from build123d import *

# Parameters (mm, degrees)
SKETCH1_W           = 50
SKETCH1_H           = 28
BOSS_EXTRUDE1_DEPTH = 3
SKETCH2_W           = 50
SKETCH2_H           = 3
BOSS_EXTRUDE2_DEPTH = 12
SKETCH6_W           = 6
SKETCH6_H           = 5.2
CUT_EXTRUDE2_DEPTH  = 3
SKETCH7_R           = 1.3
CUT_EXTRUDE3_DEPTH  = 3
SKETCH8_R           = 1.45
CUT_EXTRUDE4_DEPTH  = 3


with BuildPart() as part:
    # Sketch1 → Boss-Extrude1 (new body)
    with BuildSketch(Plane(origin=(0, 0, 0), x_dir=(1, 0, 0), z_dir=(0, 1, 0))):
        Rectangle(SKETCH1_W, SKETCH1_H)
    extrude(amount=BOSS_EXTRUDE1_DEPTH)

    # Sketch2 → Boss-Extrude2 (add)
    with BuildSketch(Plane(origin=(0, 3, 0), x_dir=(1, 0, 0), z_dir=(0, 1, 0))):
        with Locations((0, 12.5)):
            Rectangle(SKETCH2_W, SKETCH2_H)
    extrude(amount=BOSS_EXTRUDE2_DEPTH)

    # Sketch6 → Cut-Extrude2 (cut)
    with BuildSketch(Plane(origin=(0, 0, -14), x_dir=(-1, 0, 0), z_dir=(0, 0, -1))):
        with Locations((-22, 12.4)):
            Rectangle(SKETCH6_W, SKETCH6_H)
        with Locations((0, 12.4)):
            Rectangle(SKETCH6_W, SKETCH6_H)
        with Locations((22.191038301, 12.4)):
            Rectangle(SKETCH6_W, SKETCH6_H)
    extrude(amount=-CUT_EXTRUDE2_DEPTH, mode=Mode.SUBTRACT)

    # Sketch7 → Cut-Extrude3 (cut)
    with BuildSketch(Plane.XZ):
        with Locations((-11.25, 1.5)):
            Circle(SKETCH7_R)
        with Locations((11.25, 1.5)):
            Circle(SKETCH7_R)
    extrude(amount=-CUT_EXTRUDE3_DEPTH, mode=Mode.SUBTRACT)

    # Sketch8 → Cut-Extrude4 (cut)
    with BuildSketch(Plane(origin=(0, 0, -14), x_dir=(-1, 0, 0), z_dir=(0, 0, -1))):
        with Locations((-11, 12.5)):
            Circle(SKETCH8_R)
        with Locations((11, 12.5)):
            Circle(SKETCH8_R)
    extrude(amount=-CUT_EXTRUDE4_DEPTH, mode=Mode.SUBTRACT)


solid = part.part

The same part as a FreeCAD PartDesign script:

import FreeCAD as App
import Part
import Sketcher
from FreeCAD import Vector


def add_polygon(sketch, points):
    """Adds a closed chain of lines whose ends are joined by coincident constraints."""
    first, n = sketch.GeometryCount, len(points)
    for a, b in zip(points, points[1:] + points[:1]):
        sketch.addGeometry(Part.LineSegment(App.Vector(*a, 0), App.Vector(*b, 0)), False)
    for i in range(n):
        sketch.addConstraint(Sketcher.Constraint("Coincident", first + i, 2, first + (i + 1) % n, 1))

doc = App.newDocument("Part")
params = doc.addObject("Spreadsheet::Sheet", "Params")
for row, (alias, value) in enumerate([
    ("sketch1_width", "50 mm"),
    ("sketch1_height", "28 mm"),
    ("pad1_length", "3 mm"),
    ("sketch2_width", "50 mm"),
    ("sketch2_height", "3 mm"),
    ("pad2_length", "12 mm"),
    ("sketch3_width", "6 mm"),
    ("sketch3_height", "5.2 mm"),
    ("pocket1_length", "3 mm"),
    ("sketch4_diameter", "2.6 mm"),
    ("pocket2_length", "3 mm"),
    ("sketch5_diameter", "2.9 mm"),
    ("pocket3_length", "3 mm"),
], start=1):
    params.set(f"A{row}", alias)
    params.set(f"B{row}", "=" + value)
    params.setAlias(f"B{row}", alias)

body = doc.addObject("PartDesign::Body", "Body")

sketch1 = doc.addObject("Sketcher::SketchObject", "Sketch")
body.addObject(sketch1)
sketch1.AttachmentSupport = (doc.XZ_Plane, [""])
sketch1.MapMode = "FlatFace"
add_polygon(sketch1, [(-25, -14), (-25, 14), (25, 14), (25, -14)])
sketch1.addConstraint([
    Sketcher.Constraint("Vertical", 0),
    Sketcher.Constraint("Horizontal", 1),
    Sketcher.Constraint("Vertical", 2),
    Sketcher.Constraint("Horizontal", 3),
    Sketcher.Constraint("Symmetric", 0, 2, 2, 2, -1, 1),
    Sketcher.Constraint("DistanceX", 1, 1, 1, 2, 50.0),
    Sketcher.Constraint("DistanceY", 0, 1, 0, 2, 28.0),
])
sketch1.setExpression("Constraints[9]", "Params.sketch1_width")
sketch1.setExpression("Constraints[10]", "Params.sketch1_height")
pad1 = doc.addObject("PartDesign::Pad", "Pad")
body.addObject(pad1)
pad1.Profile = sketch1
pad1.setExpression("Length", "Params.pad1_length")
pad1.Reversed = True

sketch2 = doc.addObject("Sketcher::SketchObject", "Sketch001")
body.addObject(sketch2)
sketch2.AttachmentSupport = (doc.XZ_Plane, [""])
sketch2.MapMode = "FlatFace"
sketch2.AttachmentOffset = App.Placement(Vector(0, 0, -3), App.Rotation())
add_polygon(sketch2, [(-25, -14), (-25, -11), (25, -11), (25, -14)])
sketch2.addConstraint([
    Sketcher.Constraint("Vertical", 0),
    Sketcher.Constraint("Horizontal", 1),
    Sketcher.Constraint("Vertical", 2),
    Sketcher.Constraint("Horizontal", 3),
    Sketcher.Constraint("DistanceX", 1, 1, 1, 2, 50.0),
    Sketcher.Constraint("DistanceY", 0, 1, 0, 2, 3.0),
    Sketcher.Constraint("DistanceX", 0, 2, -1, 1, 25.0),
    Sketcher.Constraint("DistanceY", 0, 2, -1, 1, 11.0),
])
sketch2.setExpression("Constraints[8]", "Params.sketch2_width")
sketch2.setExpression("Constraints[9]", "Params.sketch2_height")
pad2 = doc.addObject("PartDesign::Pad", "Pad001")
body.addObject(pad2)
pad2.Profile = sketch2
pad2.setExpression("Length", "Params.pad2_length")
pad2.Reversed = True

sketch3 = doc.addObject("Sketcher::SketchObject", "Sketch002")
body.addObject(sketch3)
sketch3.AttachmentSupport = (doc.XY_Plane, [""])
sketch3.MapMode = "FlatFace"
sketch3.AttachmentOffset = App.Placement(Vector(0, 0, -14), App.Rotation())
add_polygon(sketch3, [(25, 15), (25, 10), (19, 10), (19, 15)])
add_polygon(sketch3, [(3, 15), (3, 10), (-3, 10), (-3, 15)])
add_polygon(sketch3, [(-19, 15), (-19, 10), (-25, 10), (-25, 15)])
sketch3.addConstraint([
    Sketcher.Constraint("Vertical", 0),
    Sketcher.Constraint("Horizontal", 1),
    Sketcher.Constraint("Vertical", 2),
    Sketcher.Constraint("Horizontal", 3),
    Sketcher.Constraint("Vertical", 4),
    Sketcher.Constraint("Horizontal", 5),
    Sketcher.Constraint("Vertical", 6),
    Sketcher.Constraint("Horizontal", 7),
    Sketcher.Constraint("Vertical", 8),
    Sketcher.Constraint("Horizontal", 9),
    Sketcher.Constraint("Vertical", 10),
    Sketcher.Constraint("Horizontal", 11),
    Sketcher.Constraint("Horizontal", 1, 2, 4, 2),
    Sketcher.Constraint("Horizontal", 3, 2, 6, 2),
    Sketcher.Constraint("Horizontal", 5, 2, 8, 2),
    Sketcher.Constraint("Horizontal", 7, 2, 10, 2),
    Sketcher.Constraint("Equal", 3, 5),
    Sketcher.Constraint("Equal", 7, 9),
    Sketcher.Constraint("DistanceX", 1, 2, 1, 1, 6.0),
    Sketcher.Constraint("DistanceY", 0, 2, 0, 1, 5.2),
    Sketcher.Constraint("DistanceX", -1, 1, 0, 2, 25.0),
    Sketcher.Constraint("DistanceY", -1, 1, 2, 2, 15.0),
    Sketcher.Constraint("DistanceX", -1, 1, 4, 2, 3.0),
    Sketcher.Constraint("DistanceX", 8, 2, -1, 1, 19.191038),
])
sketch3.setExpression("Constraints[30]", "Params.sketch3_width")
sketch3.setExpression("Constraints[31]", "Params.sketch3_height")
pocket1 = doc.addObject("PartDesign::Pocket", "Pocket")
body.addObject(pocket1)
pocket1.Profile = sketch3
pocket1.setExpression("Length", "Params.pocket1_length")
pocket1.Reversed = True

sketch4 = doc.addObject("Sketcher::SketchObject", "Sketch003")
body.addObject(sketch4)
sketch4.AttachmentSupport = (doc.XZ_Plane, [""])
sketch4.MapMode = "FlatFace"
sketch4.addGeometry([
    Part.Circle(Vector(-11.2, 1.5, 0), Vector(0, 0, 1), 1.3),
    Part.Circle(Vector(11.2, 1.5, 0), Vector(0, 0, 1), 1.3),
], False)
sketch4.addConstraint([
    Sketcher.Constraint("Equal", 0, 1),
    Sketcher.Constraint("Symmetric", 0, 3, 1, 3, -2),
    Sketcher.Constraint("Diameter", 0, 2.6),
    Sketcher.Constraint("DistanceY", -1, 1, 0, 3, 1.5),
    Sketcher.Constraint("DistanceX", 0, 3, 1, 3, 22.5),
])
sketch4.setExpression("Constraints[2]", "Params.sketch4_diameter")
pocket2 = doc.addObject("PartDesign::Pocket", "Pocket001")
body.addObject(pocket2)
pocket2.Profile = sketch4
pocket2.setExpression("Length", "Params.pocket2_length")

sketch5 = doc.addObject("Sketcher::SketchObject", "Sketch004")
body.addObject(sketch5)
sketch5.AttachmentSupport = (doc.XY_Plane, [""])
sketch5.MapMode = "FlatFace"
sketch5.AttachmentOffset = App.Placement(Vector(0, 0, -14), App.Rotation())
sketch5.addGeometry([
    Part.Circle(Vector(11, 12.5, 0), Vector(0, 0, 1), 1.4),
    Part.Circle(Vector(-11, 12.5, 0), Vector(0, 0, 1), 1.4),
], False)
sketch5.addConstraint([
    Sketcher.Constraint("Equal", 0, 1),
    Sketcher.Constraint("Symmetric", 0, 3, 1, 3, -2),
    Sketcher.Constraint("Diameter", 0, 2.9),
    Sketcher.Constraint("DistanceX", -1, 1, 0, 3, 11.0),
    Sketcher.Constraint("DistanceY", -1, 1, 0, 3, 12.5),
])
sketch5.setExpression("Constraints[2]", "Params.sketch5_diameter")
pocket3 = doc.addObject("PartDesign::Pocket", "Pocket002")
body.addObject(pocket3)
pocket3.Profile = sketch5
pocket3.setExpression("Length", "Params.pocket3_length")
pocket3.Reversed = True

doc.recompute()
